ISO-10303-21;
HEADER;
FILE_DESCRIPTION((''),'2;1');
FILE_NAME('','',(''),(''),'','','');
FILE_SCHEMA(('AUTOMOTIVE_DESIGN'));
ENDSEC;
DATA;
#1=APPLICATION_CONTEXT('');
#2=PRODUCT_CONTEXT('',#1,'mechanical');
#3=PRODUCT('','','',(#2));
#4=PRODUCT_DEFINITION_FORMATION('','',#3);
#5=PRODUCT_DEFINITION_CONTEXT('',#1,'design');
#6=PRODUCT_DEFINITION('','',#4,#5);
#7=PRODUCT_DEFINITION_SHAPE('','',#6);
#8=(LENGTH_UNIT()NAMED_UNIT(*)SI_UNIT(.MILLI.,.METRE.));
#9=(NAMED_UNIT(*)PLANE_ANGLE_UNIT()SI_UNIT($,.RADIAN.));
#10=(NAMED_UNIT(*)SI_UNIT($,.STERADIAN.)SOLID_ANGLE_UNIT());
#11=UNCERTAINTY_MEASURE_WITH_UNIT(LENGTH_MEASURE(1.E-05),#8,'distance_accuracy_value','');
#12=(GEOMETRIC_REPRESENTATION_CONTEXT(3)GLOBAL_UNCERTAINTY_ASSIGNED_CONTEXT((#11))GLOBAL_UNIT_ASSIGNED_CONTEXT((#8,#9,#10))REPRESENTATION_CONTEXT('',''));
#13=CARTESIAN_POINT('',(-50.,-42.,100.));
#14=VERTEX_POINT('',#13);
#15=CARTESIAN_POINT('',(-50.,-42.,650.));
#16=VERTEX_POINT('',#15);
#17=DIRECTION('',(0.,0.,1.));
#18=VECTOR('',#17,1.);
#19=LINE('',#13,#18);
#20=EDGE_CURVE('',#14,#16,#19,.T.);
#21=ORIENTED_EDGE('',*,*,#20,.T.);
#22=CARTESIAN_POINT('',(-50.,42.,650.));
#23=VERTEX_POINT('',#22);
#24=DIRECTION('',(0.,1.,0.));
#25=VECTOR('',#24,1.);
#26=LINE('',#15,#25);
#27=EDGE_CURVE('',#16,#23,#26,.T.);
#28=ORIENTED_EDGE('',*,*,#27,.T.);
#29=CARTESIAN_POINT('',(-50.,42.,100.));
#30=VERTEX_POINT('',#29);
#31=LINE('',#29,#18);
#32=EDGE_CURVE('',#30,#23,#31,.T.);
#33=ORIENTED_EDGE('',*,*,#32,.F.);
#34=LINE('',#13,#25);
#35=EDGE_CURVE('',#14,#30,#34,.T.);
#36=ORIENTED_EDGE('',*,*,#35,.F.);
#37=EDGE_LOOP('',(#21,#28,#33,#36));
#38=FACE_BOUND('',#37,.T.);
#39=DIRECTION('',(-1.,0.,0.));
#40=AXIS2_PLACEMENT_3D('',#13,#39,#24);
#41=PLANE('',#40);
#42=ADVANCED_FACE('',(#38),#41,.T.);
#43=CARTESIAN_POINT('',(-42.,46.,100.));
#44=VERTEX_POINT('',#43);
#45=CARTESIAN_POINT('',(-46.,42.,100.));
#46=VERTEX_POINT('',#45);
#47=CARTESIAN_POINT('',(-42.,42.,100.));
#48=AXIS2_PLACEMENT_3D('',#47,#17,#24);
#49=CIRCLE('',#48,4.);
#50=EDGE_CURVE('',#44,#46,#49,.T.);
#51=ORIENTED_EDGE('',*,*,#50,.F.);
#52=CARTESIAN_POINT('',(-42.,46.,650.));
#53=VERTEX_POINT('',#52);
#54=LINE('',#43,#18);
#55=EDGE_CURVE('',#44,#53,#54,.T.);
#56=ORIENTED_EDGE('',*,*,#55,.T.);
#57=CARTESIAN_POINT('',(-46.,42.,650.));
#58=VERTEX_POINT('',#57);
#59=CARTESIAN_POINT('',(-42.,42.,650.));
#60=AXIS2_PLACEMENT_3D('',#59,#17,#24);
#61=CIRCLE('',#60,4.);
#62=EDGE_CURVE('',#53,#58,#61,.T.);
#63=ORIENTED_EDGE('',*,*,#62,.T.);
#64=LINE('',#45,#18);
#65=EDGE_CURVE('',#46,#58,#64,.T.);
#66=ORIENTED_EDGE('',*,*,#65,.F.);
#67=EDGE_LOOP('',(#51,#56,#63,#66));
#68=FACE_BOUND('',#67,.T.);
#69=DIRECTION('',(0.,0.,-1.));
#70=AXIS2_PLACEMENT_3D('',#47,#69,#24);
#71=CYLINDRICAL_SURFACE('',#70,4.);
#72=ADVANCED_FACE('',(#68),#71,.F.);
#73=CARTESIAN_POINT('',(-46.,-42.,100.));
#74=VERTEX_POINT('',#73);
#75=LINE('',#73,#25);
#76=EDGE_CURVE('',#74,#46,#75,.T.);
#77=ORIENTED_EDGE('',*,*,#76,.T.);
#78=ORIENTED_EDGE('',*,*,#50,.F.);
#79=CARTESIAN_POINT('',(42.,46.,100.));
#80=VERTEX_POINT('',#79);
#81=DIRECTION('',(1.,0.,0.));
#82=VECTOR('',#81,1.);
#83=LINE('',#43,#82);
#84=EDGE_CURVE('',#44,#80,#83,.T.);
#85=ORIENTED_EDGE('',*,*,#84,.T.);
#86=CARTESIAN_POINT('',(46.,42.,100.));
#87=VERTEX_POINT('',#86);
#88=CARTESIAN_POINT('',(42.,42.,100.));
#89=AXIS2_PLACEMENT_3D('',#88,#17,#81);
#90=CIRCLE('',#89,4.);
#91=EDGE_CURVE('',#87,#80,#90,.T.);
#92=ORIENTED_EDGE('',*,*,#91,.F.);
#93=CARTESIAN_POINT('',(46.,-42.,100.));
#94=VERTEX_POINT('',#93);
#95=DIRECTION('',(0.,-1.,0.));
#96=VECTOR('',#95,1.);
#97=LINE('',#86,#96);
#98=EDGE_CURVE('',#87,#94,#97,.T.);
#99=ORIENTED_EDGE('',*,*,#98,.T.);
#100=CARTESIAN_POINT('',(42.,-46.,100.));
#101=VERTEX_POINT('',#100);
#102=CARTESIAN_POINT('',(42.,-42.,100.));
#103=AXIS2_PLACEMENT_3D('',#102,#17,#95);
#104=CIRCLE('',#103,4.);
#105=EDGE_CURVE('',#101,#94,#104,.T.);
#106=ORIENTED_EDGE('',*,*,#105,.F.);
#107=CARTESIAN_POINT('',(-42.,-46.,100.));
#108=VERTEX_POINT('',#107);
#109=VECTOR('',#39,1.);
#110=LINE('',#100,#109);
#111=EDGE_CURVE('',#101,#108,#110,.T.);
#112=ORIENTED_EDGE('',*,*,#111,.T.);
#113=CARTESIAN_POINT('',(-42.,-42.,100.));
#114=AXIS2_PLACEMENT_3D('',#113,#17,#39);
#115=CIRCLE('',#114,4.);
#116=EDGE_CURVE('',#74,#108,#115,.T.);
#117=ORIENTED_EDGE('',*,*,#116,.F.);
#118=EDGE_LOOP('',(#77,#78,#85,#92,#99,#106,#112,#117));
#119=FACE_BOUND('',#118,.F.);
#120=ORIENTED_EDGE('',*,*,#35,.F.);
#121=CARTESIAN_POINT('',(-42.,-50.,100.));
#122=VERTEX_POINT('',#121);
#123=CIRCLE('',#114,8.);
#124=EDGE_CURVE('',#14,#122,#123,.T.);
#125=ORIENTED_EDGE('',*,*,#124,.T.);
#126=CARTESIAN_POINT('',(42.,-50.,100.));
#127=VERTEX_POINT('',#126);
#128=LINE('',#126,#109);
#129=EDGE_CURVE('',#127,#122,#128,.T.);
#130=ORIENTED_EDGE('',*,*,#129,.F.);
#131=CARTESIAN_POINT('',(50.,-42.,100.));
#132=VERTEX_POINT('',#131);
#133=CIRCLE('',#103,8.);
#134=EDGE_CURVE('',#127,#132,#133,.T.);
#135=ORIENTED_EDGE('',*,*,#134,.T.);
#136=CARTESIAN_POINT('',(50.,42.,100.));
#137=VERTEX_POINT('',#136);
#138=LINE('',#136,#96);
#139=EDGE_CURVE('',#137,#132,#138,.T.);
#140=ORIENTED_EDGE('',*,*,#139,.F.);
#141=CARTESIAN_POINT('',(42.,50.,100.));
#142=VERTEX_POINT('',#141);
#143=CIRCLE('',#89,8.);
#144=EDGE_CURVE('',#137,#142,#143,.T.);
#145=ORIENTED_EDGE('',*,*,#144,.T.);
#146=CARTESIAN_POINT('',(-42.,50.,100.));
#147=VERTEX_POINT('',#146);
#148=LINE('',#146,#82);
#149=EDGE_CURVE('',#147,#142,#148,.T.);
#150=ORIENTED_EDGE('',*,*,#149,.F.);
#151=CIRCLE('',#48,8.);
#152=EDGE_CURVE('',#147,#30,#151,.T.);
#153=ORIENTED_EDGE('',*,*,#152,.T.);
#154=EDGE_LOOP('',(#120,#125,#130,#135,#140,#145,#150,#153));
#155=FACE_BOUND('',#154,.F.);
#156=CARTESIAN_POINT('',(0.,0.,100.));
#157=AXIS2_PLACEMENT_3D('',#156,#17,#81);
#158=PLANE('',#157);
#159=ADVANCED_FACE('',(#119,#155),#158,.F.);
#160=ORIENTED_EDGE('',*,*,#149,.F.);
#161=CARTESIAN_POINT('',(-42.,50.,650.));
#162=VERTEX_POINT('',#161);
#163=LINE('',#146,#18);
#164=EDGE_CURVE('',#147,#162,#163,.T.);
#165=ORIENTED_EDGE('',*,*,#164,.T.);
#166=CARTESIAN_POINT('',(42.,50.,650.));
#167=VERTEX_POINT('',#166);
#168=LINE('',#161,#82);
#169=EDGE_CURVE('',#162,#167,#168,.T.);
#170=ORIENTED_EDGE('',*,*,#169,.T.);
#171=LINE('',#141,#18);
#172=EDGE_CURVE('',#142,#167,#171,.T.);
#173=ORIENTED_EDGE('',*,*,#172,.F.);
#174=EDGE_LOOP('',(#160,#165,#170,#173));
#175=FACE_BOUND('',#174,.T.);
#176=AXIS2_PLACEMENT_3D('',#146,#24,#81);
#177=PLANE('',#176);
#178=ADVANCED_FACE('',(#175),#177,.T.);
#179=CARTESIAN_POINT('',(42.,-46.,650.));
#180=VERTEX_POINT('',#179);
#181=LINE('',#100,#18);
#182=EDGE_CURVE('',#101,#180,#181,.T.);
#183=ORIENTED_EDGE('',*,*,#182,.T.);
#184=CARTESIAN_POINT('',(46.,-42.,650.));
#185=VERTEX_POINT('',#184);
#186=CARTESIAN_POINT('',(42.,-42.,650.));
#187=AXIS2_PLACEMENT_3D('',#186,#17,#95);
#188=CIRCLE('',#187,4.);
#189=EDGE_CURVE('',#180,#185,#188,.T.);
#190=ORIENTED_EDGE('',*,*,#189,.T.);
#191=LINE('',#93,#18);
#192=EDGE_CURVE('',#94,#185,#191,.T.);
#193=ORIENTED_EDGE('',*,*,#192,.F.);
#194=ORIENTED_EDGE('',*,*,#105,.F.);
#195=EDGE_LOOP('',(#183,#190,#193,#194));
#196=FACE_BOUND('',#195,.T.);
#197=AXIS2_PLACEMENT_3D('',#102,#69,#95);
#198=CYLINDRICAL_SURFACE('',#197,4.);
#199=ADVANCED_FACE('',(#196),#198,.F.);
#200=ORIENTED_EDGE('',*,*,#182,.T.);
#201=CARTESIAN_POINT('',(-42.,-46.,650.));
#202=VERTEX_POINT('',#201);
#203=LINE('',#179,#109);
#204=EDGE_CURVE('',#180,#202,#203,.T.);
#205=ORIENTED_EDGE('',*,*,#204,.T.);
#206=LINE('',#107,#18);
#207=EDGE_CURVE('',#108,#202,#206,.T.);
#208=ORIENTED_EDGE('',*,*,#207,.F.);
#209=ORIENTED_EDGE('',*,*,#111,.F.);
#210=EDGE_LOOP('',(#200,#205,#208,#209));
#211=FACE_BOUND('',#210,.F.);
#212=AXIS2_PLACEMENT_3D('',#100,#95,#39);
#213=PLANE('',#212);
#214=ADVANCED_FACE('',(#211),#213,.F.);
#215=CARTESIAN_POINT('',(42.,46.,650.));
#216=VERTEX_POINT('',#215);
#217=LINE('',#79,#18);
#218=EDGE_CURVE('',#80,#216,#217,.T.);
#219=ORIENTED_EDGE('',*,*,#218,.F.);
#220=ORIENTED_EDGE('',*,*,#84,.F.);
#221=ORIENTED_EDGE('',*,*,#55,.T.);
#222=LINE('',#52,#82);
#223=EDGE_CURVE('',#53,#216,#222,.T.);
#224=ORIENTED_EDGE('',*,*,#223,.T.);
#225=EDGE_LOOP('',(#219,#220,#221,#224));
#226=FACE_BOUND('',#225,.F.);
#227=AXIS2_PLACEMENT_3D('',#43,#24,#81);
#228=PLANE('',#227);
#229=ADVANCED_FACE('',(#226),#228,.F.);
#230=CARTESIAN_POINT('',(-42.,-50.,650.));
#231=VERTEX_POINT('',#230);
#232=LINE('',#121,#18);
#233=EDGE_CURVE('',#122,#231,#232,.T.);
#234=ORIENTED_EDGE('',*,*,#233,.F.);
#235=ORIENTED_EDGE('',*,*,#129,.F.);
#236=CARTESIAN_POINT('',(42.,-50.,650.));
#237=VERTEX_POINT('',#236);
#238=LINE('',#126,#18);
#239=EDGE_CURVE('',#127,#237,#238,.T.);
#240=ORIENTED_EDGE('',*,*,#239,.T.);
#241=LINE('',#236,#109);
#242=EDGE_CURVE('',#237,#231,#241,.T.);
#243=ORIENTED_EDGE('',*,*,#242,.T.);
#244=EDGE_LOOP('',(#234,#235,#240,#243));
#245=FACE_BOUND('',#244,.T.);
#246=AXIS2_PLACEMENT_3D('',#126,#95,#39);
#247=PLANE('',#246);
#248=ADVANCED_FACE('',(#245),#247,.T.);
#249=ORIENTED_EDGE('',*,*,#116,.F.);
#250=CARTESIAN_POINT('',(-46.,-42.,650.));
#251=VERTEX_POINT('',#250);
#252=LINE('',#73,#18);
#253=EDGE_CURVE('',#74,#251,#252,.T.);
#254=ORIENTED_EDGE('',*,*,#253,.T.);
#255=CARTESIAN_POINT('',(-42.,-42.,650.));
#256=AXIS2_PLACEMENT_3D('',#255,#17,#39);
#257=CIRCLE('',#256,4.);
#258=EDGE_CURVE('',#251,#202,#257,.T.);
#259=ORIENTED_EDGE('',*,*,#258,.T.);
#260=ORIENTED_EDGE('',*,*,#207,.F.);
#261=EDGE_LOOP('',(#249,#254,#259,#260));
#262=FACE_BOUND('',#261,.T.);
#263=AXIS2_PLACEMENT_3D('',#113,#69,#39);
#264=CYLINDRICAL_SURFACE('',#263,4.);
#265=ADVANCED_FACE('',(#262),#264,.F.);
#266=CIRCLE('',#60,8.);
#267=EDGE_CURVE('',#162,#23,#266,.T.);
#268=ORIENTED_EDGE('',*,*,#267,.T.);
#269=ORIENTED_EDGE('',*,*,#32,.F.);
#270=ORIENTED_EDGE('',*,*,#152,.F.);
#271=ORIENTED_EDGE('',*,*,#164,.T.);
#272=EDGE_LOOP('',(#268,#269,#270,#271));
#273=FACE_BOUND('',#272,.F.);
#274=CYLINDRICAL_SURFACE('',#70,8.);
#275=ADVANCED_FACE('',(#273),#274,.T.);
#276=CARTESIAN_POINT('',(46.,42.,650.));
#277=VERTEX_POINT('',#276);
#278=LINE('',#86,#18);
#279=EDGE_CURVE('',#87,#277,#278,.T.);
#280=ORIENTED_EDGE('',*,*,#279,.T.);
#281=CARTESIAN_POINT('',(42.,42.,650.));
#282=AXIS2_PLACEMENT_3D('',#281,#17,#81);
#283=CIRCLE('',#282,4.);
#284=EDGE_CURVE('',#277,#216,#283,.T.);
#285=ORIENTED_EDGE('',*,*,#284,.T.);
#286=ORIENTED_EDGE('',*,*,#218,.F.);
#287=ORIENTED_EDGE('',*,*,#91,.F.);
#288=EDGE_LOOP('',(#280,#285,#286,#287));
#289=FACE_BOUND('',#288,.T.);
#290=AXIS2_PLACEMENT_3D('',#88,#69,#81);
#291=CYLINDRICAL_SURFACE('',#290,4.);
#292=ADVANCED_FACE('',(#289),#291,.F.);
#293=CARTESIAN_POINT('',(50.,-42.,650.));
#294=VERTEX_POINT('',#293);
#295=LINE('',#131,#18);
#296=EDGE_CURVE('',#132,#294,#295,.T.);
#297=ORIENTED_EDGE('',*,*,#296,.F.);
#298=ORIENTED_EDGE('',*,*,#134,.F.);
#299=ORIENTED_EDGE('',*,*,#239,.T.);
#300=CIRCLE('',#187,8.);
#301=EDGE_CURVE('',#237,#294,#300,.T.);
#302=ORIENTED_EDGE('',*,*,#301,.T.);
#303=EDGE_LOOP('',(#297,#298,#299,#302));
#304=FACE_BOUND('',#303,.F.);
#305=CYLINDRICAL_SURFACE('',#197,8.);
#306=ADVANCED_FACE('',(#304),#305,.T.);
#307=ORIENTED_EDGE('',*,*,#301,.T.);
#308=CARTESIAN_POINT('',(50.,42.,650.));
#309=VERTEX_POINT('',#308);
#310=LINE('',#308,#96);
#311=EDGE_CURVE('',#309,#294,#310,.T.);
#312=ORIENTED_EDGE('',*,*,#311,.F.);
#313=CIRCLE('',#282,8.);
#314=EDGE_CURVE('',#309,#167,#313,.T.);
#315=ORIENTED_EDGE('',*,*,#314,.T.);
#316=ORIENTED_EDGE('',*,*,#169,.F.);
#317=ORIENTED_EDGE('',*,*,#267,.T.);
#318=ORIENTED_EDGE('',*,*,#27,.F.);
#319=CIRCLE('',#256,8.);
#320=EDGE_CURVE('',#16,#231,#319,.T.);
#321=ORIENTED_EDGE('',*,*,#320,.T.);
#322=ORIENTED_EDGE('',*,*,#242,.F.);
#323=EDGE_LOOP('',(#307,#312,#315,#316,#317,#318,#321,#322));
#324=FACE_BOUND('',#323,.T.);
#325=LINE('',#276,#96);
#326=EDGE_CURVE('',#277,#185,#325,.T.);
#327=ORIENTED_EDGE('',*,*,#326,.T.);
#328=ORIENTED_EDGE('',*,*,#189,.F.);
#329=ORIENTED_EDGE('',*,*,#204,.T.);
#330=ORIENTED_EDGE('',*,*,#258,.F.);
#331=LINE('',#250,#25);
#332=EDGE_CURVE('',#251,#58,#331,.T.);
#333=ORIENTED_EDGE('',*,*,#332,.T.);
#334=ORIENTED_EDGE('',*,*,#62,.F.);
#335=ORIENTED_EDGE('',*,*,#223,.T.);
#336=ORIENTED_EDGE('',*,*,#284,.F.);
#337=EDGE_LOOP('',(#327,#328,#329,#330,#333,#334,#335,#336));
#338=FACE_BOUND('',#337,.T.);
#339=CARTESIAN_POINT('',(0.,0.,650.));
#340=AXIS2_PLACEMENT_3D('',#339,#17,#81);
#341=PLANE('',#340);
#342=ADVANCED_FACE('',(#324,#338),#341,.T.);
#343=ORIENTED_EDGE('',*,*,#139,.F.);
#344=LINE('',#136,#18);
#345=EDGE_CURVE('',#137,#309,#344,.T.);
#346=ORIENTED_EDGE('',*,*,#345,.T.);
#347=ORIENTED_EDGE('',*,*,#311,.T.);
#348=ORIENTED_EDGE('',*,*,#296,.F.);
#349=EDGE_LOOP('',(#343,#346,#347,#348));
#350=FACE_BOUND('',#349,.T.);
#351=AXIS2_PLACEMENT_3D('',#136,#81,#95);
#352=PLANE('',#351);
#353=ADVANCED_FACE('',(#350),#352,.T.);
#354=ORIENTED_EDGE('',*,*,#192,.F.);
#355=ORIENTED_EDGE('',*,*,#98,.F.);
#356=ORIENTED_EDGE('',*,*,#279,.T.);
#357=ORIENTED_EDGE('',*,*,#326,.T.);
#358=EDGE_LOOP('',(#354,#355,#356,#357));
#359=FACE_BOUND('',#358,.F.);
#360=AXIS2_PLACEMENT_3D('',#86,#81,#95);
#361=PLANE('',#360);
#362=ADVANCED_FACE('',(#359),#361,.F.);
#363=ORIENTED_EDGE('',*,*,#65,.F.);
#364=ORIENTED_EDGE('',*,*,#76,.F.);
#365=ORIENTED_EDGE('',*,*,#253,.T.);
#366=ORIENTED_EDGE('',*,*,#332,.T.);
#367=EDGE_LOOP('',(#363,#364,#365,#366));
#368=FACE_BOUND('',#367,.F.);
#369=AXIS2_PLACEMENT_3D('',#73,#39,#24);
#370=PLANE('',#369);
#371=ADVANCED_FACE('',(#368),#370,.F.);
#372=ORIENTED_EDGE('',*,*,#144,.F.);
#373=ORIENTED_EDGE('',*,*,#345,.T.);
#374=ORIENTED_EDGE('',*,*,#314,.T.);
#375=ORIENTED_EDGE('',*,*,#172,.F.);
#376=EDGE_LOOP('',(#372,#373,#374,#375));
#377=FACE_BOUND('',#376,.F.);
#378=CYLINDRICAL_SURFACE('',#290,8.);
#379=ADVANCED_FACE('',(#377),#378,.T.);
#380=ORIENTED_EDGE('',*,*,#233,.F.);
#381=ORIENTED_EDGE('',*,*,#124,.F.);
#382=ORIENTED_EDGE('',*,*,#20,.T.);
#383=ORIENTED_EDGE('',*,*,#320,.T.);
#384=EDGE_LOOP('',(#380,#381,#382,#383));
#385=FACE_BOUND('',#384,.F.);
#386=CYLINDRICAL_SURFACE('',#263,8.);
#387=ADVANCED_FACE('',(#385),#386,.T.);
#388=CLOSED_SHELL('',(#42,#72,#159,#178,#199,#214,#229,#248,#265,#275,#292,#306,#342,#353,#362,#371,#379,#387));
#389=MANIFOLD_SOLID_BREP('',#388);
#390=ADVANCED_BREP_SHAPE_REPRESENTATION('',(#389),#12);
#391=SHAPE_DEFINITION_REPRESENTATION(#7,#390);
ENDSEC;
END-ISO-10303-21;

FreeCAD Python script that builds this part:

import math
import FreeCAD as App
import Part
import Sketcher
from FreeCAD import Vector
Q = App.Units.Quantity

doc = App.newDocument("Part")
params = doc.addObject("Spreadsheet::Sheet", "Params")
for row, (alias, value) in enumerate([
    ("sketch1_radius", "8 mm"),
    ("sketch1_radius2", "4 mm"),
    ("pad1_length", "550 mm"),
], start=1):
    params.set(f"A{row}", alias)
    params.set(f"B{row}", "=" + value)
    params.setAlias(f"B{row}", alias)

body = doc.addObject("PartDesign::Body", "Body")

# Sketch on XY plane
sketch1 = body.newObject("Sketcher::SketchObject", "Sketch")
sketch1.AttachmentSupport = (doc.getObject("XY_Plane"), [""])
sketch1.MapMode = "FlatFace"
sketch1.AttachmentOffset = App.Placement(Vector(0, 0, 100), App.Rotation())
sketch1.addGeometry([
    Part.LineSegment(Vector(-50, 42, 0), Vector(-50, -42, 0)),  # 0
    Part.ArcOfCircle(Part.Circle(Vector(-42, -42, 0), Vector(0, 0, 1), 8), math.radians(180), math.radians(270)),  # 1
    Part.LineSegment(Vector(-42, -50, 0), Vector(42, -50, 0)),  # 2
    Part.ArcOfCircle(Part.Circle(Vector(42, -42, 0), Vector(0, 0, 1), 8), math.radians(-90), math.radians(0)),  # 3
    Part.LineSegment(Vector(50, -42, 0), Vector(50, 42, 0)),  # 4
    Part.ArcOfCircle(Part.Circle(Vector(42, 42, 0), Vector(0, 0, 1), 8), math.radians(0), math.radians(90)),  # 5
    Part.LineSegment(Vector(42, 50, 0), Vector(-42, 50, 0)),  # 6
    Part.ArcOfCircle(Part.Circle(Vector(-42, 42, 0), Vector(0, 0, 1), 8), math.radians(90), math.radians(180)),  # 7
    Part.ArcOfCircle(Part.Circle(Vector(-42, 42, 0), Vector(0, 0, 1), 4), math.radians(90), math.radians(180)),  # 8
    Part.LineSegment(Vector(-42, 46, 0), Vector(42, 46, 0)),  # 9
    Part.ArcOfCircle(Part.Circle(Vector(42, 42, 0), Vector(0, 0, 1), 4), math.radians(0), math.radians(90)),  # 10
    Part.LineSegment(Vector(46, 42, 0), Vector(46, -42, 0)),  # 11
    Part.ArcOfCircle(Part.Circle(Vector(42, -42, 0), Vector(0, 0, 1), 4), math.radians(-90), math.radians(0)),  # 12
    Part.LineSegment(Vector(42, -46, 0), Vector(-42, -46, 0)),  # 13
    Part.ArcOfCircle(Part.Circle(Vector(-42, -42, 0), Vector(0, 0, 1), 4), math.radians(180), math.radians(270)),  # 14
    Part.LineSegment(Vector(-46, -42, 0), Vector(-46, 42, 0)),  # 15
], False)
sketch1.addConstraint([
    Sketcher.Constraint("Tangent", 0, 2, 1, 1),
    Sketcher.Constraint("Tangent", 1, 2, 2, 1),
    Sketcher.Constraint("Tangent", 2, 2, 3, 1),
    Sketcher.Constraint("Tangent", 3, 2, 4, 1),
    Sketcher.Constraint("Tangent", 4, 2, 5, 1),
    Sketcher.Constraint("Tangent", 5, 2, 6, 1),
    Sketcher.Constraint("Tangent", 6, 2, 7, 1),
    Sketcher.Constraint("Tangent", 7, 2, 0, 1),
    Sketcher.Constraint("Tangent", 8, 1, 9, 1),
    Sketcher.Constraint("Tangent", 9, 2, 10, 2),
    Sketcher.Constraint("Tangent", 10, 1, 11, 1),
    Sketcher.Constraint("Tangent", 11, 2, 12, 2),
    Sketcher.Constraint("Tangent", 12, 1, 13, 1),
    Sketcher.Constraint("Tangent", 13, 2, 14, 2),
    Sketcher.Constraint("Tangent", 14, 1, 15, 1),
    Sketcher.Constraint("Tangent", 15, 2, 8, 2),
    Sketcher.Constraint("Vertical", 0),
    Sketcher.Constraint("Horizontal", 2),
    Sketcher.Constraint("Vertical", 4),
    Sketcher.Constraint("Horizontal", 6),
    Sketcher.Constraint("Horizontal", 9),
    Sketcher.Constraint("Vertical", 11),
    Sketcher.Constraint("Horizontal", 13),
    Sketcher.Constraint("Vertical", 15),
    Sketcher.Constraint("Coincident", 8, 3, 7, 3),
    Sketcher.Constraint("Coincident", 10, 3, 5, 3),
    Sketcher.Constraint("Coincident", 12, 3, 3, 3),
    Sketcher.Constraint("Equal", 1, 3),
    Sketcher.Constraint("Equal", 3, 5),
    Sketcher.Constraint("Equal", 5, 7),
    Sketcher.Constraint("Equal", 12, 14),
    Sketcher.Constraint("Symmetric", 1, 3, 5, 3, -1, 1),
    Sketcher.Constraint("Equal", 13, 0),
    Sketcher.Constraint("Radius", 1, Q("8 mm")),
    Sketcher.Constraint("Radius", 8, Q("4 mm")),
    Sketcher.Constraint("DistanceX", 0, 2, -1, 1, Q("50 mm")),
])
sketch1.setExpression("Constraints[33]", "Params.sketch1_radius")
sketch1.setExpression("Constraints[34]", "Params.sketch1_radius2")
pad1 = body.newObject("PartDesign::Pad", "Pad")
pad1.Profile = sketch1
pad1.setExpression("Length", "Params.pad1_length")

doc.recompute()
